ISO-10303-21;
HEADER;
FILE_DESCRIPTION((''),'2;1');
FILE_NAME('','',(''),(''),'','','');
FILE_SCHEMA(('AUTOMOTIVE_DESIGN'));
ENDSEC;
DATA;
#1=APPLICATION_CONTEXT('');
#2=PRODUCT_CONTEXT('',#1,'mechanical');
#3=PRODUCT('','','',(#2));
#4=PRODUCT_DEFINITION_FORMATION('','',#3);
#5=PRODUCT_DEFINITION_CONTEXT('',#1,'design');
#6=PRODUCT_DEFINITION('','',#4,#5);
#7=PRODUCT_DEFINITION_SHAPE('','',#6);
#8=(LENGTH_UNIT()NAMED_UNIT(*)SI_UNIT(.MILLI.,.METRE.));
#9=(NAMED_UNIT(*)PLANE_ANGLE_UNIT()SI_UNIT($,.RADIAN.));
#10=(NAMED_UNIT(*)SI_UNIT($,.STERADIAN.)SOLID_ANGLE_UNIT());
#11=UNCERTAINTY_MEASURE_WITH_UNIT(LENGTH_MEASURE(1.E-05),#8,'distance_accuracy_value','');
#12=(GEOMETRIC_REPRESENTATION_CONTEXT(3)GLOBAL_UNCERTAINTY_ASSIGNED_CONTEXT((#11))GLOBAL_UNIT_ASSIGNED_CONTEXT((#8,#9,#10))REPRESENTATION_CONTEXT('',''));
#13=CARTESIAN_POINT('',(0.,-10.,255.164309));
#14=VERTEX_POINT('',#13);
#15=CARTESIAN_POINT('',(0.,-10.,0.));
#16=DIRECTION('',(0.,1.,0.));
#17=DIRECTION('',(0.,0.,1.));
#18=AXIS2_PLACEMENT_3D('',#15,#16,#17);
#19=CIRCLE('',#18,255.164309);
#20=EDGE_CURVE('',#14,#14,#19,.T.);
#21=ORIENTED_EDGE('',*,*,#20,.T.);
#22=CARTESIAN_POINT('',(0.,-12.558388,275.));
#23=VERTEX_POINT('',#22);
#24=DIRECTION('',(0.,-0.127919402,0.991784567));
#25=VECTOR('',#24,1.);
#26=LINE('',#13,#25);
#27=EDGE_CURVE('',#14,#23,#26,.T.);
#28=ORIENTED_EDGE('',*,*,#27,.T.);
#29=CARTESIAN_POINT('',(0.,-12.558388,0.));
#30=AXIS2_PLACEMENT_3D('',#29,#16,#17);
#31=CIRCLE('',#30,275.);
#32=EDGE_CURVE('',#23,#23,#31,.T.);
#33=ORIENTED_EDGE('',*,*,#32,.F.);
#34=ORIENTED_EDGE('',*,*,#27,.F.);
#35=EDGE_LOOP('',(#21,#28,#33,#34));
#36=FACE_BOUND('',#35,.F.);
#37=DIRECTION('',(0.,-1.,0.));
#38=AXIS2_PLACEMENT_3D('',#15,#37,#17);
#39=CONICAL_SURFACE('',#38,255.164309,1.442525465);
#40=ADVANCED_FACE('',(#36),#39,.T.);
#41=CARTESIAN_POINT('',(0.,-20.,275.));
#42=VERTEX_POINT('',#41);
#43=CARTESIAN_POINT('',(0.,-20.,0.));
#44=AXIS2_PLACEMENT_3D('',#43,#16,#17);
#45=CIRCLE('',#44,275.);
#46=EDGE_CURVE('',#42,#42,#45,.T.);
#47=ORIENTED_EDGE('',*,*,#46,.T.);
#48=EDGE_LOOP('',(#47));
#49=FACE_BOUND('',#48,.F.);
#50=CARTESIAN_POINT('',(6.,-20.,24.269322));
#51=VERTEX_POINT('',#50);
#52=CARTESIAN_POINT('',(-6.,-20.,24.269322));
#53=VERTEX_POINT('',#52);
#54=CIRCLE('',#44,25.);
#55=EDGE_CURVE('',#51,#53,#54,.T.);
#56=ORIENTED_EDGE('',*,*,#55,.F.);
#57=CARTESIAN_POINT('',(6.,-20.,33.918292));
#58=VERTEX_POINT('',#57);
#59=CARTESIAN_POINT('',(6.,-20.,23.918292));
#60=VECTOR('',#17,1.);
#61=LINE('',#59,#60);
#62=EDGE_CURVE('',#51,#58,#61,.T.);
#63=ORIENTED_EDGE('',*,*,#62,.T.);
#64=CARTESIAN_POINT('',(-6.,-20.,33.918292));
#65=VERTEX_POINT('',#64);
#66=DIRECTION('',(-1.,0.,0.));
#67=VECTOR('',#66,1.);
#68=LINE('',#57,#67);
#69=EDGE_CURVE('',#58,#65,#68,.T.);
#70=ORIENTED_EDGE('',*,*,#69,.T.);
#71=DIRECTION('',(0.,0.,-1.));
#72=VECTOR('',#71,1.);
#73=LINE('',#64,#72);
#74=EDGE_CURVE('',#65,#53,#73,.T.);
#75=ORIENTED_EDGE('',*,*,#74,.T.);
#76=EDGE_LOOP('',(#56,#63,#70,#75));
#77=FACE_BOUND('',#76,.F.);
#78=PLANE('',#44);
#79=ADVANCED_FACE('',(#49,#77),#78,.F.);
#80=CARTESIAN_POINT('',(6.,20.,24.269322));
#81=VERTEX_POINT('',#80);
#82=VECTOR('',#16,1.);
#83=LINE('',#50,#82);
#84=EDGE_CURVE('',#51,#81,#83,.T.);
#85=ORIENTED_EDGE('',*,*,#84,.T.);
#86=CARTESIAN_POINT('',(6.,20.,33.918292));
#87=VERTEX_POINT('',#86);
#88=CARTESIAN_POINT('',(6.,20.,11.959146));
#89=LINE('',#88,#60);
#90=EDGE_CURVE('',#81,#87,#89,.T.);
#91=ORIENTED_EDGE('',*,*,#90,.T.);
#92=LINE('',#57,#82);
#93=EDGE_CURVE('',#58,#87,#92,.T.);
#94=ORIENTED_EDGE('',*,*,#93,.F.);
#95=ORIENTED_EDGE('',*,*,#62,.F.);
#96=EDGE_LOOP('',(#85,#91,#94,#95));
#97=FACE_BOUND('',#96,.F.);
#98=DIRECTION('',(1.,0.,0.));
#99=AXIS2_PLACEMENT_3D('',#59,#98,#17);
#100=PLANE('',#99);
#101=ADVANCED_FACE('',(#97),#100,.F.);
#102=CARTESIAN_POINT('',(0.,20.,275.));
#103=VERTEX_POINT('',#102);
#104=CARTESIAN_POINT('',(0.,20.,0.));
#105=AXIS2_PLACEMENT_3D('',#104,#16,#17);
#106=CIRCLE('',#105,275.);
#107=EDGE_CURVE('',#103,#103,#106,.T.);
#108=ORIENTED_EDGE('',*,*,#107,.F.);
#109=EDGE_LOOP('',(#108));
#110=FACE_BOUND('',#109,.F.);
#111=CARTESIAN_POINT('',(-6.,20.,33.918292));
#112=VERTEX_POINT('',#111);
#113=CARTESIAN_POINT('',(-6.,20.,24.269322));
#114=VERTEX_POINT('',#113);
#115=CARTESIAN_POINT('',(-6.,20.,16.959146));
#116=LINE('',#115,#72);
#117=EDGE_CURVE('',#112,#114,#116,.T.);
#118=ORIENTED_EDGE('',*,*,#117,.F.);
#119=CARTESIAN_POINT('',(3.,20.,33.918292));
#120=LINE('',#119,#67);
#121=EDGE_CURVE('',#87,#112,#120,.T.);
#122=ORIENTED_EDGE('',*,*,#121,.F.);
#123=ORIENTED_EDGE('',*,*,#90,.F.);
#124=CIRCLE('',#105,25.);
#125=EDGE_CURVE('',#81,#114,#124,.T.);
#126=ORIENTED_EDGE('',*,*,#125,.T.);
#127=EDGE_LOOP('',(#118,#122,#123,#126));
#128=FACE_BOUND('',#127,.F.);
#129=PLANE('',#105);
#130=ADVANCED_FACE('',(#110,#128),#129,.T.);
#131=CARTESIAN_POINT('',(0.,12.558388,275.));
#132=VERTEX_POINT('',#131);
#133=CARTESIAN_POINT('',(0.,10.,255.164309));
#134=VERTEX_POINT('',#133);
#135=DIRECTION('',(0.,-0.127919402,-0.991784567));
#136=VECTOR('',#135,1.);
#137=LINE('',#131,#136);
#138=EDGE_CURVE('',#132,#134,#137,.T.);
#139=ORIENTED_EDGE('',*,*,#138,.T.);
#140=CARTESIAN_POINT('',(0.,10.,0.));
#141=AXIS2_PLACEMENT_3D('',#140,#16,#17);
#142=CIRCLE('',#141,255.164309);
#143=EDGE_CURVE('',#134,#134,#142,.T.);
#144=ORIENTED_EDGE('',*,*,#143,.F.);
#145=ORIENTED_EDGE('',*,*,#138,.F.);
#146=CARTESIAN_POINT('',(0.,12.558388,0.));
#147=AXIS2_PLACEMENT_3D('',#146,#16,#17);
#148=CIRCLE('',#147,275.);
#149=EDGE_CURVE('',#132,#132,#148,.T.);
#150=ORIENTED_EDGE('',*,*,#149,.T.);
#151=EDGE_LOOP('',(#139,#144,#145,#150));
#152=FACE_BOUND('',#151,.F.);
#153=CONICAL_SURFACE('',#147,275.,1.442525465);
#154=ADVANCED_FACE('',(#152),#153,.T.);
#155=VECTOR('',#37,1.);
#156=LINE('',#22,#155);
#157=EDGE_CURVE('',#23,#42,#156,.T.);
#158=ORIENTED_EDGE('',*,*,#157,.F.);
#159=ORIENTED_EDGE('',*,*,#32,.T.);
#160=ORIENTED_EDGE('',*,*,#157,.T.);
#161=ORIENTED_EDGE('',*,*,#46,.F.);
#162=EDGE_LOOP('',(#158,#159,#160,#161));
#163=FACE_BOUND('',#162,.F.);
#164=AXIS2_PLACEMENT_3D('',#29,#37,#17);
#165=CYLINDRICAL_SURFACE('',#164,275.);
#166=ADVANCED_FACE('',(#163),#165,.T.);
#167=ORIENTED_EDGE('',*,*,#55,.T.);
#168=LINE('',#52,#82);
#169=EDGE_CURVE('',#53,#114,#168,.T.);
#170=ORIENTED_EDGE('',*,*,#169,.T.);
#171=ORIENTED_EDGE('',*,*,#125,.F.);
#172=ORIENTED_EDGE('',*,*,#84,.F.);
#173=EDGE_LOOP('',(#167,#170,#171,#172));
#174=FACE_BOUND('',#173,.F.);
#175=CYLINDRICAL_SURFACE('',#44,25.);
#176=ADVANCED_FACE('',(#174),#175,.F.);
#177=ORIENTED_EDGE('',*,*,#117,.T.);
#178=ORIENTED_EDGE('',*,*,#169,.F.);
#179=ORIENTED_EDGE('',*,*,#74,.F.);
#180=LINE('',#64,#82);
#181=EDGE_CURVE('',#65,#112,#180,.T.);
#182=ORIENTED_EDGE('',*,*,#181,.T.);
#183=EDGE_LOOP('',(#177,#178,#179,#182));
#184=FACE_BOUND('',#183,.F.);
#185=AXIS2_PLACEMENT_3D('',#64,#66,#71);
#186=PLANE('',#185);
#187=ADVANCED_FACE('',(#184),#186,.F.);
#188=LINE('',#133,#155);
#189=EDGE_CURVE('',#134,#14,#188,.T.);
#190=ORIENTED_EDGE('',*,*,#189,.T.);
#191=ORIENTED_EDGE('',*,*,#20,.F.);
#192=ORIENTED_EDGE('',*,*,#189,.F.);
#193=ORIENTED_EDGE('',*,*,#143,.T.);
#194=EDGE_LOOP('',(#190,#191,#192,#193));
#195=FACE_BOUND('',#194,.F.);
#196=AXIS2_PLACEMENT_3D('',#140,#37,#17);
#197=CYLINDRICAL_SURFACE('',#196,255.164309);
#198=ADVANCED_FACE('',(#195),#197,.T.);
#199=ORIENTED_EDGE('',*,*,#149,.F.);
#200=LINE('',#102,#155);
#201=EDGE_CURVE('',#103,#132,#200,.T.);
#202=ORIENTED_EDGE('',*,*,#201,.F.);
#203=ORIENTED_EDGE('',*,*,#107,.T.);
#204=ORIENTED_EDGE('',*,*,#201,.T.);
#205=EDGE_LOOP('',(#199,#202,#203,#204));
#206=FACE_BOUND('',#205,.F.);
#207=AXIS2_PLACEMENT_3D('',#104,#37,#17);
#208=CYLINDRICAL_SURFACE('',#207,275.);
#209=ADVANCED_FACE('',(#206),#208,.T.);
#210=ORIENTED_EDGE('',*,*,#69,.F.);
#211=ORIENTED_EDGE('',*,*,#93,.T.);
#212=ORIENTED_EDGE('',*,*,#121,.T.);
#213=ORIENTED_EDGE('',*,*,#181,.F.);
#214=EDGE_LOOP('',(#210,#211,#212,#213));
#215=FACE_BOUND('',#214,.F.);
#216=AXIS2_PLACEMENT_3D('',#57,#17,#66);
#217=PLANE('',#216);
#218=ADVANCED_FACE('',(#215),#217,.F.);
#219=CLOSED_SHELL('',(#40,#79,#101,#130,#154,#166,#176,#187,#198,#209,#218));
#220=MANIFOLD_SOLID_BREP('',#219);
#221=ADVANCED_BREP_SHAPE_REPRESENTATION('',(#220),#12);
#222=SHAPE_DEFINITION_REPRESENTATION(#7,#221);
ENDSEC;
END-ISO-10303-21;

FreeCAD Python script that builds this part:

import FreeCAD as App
import Part
import Sketcher
Q = App.Units.Quantity

doc = App.newDocument("Part")
body = doc.addObject("PartDesign::Body", "Body")

# Sketch on YZ plane
sketch1 = doc.addObject("Sketcher::SketchObject", "Sketch")
body.addObject(sketch1)
sketch1.AttachmentSupport = (doc.YZ_Plane, [""])
sketch1.MapMode = "FlatFace"
sketch1.addGeometry([
    Part.LineSegment(App.Vector(-20, 25, 0), App.Vector(20, 25, 0)),  # 0
    Part.LineSegment(App.Vector(20, 25, 0), App.Vector(20, 275, 0)),  # 1
    Part.LineSegment(App.Vector(20, 275, 0), App.Vector(13, 275, 0)),  # 2
    Part.LineSegment(App.Vector(13, 275, 0), App.Vector(10, 255, 0)),  # 3
    Part.LineSegment(App.Vector(10, 255, 0), App.Vector(-10, 255, 0)),  # 4
    Part.LineSegment(App.Vector(-10, 255, 0), App.Vector(-13, 275, 0)),  # 5
    Part.LineSegment(App.Vector(-13, 275, 0), App.Vector(-20, 275, 0)),  # 6
    Part.LineSegment(App.Vector(-20, 275, 0), App.Vector(-20, 25, 0)),  # 7
], False)
sketch1.addConstraint([
    Sketcher.Constraint("Coincident", 0, 2, 1, 1),
    Sketcher.Constraint("Coincident", 1, 2, 2, 1),
    Sketcher.Constraint("Coincident", 2, 2, 3, 1),
    Sketcher.Constraint("Coincident", 3, 2, 4, 1),
    Sketcher.Constraint("Coincident", 4, 2, 5, 1),
    Sketcher.Constraint("Coincident", 5, 2, 6, 1),
    Sketcher.Constraint("Coincident", 6, 2, 7, 1),
    Sketcher.Constraint("Coincident", 7, 2, 0, 1),
    Sketcher.Constraint("Horizontal", 0),
    Sketcher.Constraint("Vertical", 1),
    Sketcher.Constraint("Horizontal", 2),
    Sketcher.Constraint("Horizontal", 4),
    Sketcher.Constraint("Horizontal", 6),
    Sketcher.Constraint("Vertical", 7),
    Sketcher.Constraint("Symmetric", 2, 2, 5, 2, -2),
    Sketcher.Constraint("Equal", 2, 6),
    Sketcher.Constraint("Equal", 3, 5),
    Sketcher.Constraint("DistanceX", 0, 1, 0, 2, Q("40 mm")),
    Sketcher.Constraint("DistanceX", 4, 2, 4, 1, Q("20 mm")),
    Sketcher.Constraint("DistanceY", 1, 1, 1, 2, Q("250 mm")),
    Sketcher.Constraint("Distance", 3, Q("20 mm")),
    Sketcher.Constraint("DistanceY", -1, 1, 0, 2, Q("25 mm")),
    Sketcher.Constraint("DistanceX", 2, 2, 2, 1, Q("7.441612 mm")),
])
revolution = doc.addObject("PartDesign::Revolution", "Revolution")
body.addObject(revolution)
revolution.Profile = sketch1
revolution.ReferenceAxis = (sketch1, ["H_Axis"])
revolution.Angle = 360

# Sketch on XZ plane
sketch2 = doc.addObject("Sketcher::SketchObject", "Sketch001")
body.addObject(sketch2)
sketch2.AttachmentSupport = (doc.XZ_Plane, [""])
sketch2.MapMode = "FlatFace"
sketch2.AttachmentOffset = App.Placement(App.Vector(0, 0, 20), App.Rotation())
sketch2.addGeometry([
    Part.LineSegment(App.Vector(-6, 34, 0), App.Vector(-6, 24, 0)),
    Part.LineSegment(App.Vector(-6, 24, 0), App.Vector(6, 24, 0)),
    Part.LineSegment(App.Vector(6, 24, 0), App.Vector(6, 34, 0)),
    Part.LineSegment(App.Vector(6, 34, 0), App.Vector(-6, 34, 0)),
], False)
sketch2.addConstraint([
    Sketcher.Constraint("Coincident", 0, 2, 1, 1),
    Sketcher.Constraint("Coincident", 1, 2, 2, 1),
    Sketcher.Constraint("Coincident", 2, 2, 3, 1),
    Sketcher.Constraint("Coincident", 3, 2, 0, 1),
    Sketcher.Constraint("Vertical", 0),
    Sketcher.Constraint("Horizontal", 1),
    Sketcher.Constraint("Vertical", 2),
    Sketcher.Constraint("Horizontal", 3),
    Sketcher.Constraint("DistanceX", 1, 1, 1, 2, Q("12 mm")),
    Sketcher.Constraint("DistanceY", 0, 2, 0, 1, Q("10 mm")),
    Sketcher.Constraint("DistanceX", 0, 2, -1, 1, Q("6 mm")),
    Sketcher.Constraint("DistanceY", -1, 1, 0, 2, Q("23.918292 mm")),
])
pocket1 = doc.addObject("PartDesign::Pocket", "Pocket")
body.addObject(pocket1)
pocket1.Profile = sketch2
pocket1.Type = "ThroughAll"

doc.recompute()
